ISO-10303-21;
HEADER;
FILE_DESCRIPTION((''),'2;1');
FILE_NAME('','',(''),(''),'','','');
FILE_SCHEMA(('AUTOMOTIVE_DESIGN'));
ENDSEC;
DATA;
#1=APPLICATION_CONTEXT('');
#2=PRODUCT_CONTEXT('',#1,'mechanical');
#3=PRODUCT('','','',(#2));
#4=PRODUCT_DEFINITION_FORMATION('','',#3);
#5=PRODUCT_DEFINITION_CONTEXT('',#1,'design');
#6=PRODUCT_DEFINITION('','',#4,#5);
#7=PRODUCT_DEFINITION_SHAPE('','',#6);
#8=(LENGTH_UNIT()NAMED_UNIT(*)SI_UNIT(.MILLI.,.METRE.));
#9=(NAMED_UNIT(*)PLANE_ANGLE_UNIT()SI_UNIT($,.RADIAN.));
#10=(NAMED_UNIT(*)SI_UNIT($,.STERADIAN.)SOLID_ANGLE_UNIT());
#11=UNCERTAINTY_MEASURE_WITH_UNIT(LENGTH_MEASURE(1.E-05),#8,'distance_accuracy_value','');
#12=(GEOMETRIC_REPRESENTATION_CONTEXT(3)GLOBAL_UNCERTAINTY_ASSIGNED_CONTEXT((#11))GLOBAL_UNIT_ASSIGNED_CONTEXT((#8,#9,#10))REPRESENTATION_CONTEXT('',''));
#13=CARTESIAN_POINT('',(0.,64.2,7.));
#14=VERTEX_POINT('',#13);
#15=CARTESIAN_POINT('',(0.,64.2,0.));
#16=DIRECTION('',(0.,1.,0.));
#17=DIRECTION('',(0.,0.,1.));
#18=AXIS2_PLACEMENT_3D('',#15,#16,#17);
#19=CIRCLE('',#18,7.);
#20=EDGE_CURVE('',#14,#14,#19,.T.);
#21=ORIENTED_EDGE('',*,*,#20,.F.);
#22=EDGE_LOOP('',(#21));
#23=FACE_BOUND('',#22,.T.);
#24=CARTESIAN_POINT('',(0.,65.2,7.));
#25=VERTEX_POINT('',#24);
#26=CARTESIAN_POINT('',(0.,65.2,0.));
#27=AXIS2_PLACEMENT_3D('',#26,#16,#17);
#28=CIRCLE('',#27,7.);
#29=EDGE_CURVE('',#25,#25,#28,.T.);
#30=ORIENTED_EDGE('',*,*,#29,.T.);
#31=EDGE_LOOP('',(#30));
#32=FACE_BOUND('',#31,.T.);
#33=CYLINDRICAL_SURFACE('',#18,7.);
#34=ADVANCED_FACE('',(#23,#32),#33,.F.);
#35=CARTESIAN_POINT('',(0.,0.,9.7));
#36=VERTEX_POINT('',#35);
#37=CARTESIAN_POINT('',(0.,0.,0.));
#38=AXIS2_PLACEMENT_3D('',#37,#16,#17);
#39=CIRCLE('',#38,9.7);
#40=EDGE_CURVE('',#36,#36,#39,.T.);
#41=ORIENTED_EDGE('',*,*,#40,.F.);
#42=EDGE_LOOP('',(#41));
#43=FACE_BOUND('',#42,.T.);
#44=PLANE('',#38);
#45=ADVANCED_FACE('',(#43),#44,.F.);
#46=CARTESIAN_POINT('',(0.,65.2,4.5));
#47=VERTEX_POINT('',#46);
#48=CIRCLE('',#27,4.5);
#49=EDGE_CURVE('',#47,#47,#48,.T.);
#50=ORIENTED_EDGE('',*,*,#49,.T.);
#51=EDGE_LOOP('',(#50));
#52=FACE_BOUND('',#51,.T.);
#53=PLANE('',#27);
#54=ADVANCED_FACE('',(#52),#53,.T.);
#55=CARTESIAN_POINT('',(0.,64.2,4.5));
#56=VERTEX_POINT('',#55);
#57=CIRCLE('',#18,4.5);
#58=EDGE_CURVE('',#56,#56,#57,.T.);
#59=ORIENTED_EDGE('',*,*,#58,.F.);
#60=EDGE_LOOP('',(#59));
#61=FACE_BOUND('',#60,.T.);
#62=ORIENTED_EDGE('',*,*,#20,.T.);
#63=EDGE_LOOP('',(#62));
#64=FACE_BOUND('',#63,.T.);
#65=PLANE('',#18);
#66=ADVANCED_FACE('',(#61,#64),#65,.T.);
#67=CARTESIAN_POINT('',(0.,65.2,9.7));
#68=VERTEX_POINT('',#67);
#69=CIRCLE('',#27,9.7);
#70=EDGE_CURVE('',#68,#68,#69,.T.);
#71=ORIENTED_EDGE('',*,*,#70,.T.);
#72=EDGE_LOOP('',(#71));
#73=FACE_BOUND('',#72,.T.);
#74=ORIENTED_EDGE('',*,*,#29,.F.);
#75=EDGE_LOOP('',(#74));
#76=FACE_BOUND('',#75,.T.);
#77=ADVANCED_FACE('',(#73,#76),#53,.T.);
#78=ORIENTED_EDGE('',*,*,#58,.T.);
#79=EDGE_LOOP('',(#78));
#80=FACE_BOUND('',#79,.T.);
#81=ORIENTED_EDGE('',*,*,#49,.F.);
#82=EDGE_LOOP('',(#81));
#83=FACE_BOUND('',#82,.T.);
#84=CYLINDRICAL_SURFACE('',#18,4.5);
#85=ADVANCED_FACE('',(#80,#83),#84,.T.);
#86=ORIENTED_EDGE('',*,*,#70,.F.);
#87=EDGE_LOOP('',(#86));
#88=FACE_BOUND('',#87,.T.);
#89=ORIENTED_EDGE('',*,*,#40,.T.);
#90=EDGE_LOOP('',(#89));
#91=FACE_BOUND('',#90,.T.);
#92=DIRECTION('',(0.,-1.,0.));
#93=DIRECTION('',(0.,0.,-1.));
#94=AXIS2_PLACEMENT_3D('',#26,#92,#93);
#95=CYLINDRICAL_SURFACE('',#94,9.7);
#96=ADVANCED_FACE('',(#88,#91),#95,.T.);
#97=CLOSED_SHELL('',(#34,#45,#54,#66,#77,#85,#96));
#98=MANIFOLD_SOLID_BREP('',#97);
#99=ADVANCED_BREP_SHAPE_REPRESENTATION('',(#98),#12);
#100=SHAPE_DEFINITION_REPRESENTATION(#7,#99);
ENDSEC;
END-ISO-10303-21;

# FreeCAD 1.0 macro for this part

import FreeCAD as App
import Part
import Sketcher
from FreeCAD import Vector

doc = App.newDocument("Part")
body = doc.addObject("PartDesign::Body", "Body")

# Sketch on XZ plane
sketch1 = body.newObject("Sketcher::SketchObject", "Sketch")
sketch1.AttachmentSupport = (doc.getObject("XZ_Plane"), [""])
sketch1.MapMode = "FlatFace"
sketch1.addGeometry(Part.Circle(Vector(0, 0, 0), Vector(0, 0, 1), 10), False)
sketch1.addConstraint([
    Sketcher.Constraint("Coincident", 0, 3, -1, 1),
    Sketcher.Constraint("Diameter", 0, 19.4),
])
pad1 = body.newObject("PartDesign::Pad", "Pad")
pad1.Profile = sketch1
pad1.Length = 65.2
pad1.Reversed = True

# Sketch on XZ plane
sketch2 = body.newObject("Sketcher::SketchObject", "Sketch001")
sketch2.AttachmentSupport = (doc.getObject("XZ_Plane"), [""])
sketch2.MapMode = "FlatFace"
sketch2.AttachmentOffset = App.Placement(Vector(0, 0, -65.2), App.Rotation())
sketch2.addGeometry([
    Part.Circle(Vector(0, 0, 0), Vector(0, 0, 1), 7),
    Part.Circle(Vector(0, 0, 0), Vector(0, 0, 1), 4.5),
], False)
sketch2.addConstraint([
    Sketcher.Constraint("Coincident", 0, 3, -1, 1),
    Sketcher.Constraint("Coincident", 1, 3, -1, 1),
    Sketcher.Constraint("Diameter", 0, 14.0),
    Sketcher.Constraint("Diameter", 1, 9.0),
])
pocket1 = body.newObject("PartDesign::Pocket", "Pocket")
pocket1.Profile = sketch2
pocket1.Length = 1
pocket1.Reversed = True

doc.recompute()
